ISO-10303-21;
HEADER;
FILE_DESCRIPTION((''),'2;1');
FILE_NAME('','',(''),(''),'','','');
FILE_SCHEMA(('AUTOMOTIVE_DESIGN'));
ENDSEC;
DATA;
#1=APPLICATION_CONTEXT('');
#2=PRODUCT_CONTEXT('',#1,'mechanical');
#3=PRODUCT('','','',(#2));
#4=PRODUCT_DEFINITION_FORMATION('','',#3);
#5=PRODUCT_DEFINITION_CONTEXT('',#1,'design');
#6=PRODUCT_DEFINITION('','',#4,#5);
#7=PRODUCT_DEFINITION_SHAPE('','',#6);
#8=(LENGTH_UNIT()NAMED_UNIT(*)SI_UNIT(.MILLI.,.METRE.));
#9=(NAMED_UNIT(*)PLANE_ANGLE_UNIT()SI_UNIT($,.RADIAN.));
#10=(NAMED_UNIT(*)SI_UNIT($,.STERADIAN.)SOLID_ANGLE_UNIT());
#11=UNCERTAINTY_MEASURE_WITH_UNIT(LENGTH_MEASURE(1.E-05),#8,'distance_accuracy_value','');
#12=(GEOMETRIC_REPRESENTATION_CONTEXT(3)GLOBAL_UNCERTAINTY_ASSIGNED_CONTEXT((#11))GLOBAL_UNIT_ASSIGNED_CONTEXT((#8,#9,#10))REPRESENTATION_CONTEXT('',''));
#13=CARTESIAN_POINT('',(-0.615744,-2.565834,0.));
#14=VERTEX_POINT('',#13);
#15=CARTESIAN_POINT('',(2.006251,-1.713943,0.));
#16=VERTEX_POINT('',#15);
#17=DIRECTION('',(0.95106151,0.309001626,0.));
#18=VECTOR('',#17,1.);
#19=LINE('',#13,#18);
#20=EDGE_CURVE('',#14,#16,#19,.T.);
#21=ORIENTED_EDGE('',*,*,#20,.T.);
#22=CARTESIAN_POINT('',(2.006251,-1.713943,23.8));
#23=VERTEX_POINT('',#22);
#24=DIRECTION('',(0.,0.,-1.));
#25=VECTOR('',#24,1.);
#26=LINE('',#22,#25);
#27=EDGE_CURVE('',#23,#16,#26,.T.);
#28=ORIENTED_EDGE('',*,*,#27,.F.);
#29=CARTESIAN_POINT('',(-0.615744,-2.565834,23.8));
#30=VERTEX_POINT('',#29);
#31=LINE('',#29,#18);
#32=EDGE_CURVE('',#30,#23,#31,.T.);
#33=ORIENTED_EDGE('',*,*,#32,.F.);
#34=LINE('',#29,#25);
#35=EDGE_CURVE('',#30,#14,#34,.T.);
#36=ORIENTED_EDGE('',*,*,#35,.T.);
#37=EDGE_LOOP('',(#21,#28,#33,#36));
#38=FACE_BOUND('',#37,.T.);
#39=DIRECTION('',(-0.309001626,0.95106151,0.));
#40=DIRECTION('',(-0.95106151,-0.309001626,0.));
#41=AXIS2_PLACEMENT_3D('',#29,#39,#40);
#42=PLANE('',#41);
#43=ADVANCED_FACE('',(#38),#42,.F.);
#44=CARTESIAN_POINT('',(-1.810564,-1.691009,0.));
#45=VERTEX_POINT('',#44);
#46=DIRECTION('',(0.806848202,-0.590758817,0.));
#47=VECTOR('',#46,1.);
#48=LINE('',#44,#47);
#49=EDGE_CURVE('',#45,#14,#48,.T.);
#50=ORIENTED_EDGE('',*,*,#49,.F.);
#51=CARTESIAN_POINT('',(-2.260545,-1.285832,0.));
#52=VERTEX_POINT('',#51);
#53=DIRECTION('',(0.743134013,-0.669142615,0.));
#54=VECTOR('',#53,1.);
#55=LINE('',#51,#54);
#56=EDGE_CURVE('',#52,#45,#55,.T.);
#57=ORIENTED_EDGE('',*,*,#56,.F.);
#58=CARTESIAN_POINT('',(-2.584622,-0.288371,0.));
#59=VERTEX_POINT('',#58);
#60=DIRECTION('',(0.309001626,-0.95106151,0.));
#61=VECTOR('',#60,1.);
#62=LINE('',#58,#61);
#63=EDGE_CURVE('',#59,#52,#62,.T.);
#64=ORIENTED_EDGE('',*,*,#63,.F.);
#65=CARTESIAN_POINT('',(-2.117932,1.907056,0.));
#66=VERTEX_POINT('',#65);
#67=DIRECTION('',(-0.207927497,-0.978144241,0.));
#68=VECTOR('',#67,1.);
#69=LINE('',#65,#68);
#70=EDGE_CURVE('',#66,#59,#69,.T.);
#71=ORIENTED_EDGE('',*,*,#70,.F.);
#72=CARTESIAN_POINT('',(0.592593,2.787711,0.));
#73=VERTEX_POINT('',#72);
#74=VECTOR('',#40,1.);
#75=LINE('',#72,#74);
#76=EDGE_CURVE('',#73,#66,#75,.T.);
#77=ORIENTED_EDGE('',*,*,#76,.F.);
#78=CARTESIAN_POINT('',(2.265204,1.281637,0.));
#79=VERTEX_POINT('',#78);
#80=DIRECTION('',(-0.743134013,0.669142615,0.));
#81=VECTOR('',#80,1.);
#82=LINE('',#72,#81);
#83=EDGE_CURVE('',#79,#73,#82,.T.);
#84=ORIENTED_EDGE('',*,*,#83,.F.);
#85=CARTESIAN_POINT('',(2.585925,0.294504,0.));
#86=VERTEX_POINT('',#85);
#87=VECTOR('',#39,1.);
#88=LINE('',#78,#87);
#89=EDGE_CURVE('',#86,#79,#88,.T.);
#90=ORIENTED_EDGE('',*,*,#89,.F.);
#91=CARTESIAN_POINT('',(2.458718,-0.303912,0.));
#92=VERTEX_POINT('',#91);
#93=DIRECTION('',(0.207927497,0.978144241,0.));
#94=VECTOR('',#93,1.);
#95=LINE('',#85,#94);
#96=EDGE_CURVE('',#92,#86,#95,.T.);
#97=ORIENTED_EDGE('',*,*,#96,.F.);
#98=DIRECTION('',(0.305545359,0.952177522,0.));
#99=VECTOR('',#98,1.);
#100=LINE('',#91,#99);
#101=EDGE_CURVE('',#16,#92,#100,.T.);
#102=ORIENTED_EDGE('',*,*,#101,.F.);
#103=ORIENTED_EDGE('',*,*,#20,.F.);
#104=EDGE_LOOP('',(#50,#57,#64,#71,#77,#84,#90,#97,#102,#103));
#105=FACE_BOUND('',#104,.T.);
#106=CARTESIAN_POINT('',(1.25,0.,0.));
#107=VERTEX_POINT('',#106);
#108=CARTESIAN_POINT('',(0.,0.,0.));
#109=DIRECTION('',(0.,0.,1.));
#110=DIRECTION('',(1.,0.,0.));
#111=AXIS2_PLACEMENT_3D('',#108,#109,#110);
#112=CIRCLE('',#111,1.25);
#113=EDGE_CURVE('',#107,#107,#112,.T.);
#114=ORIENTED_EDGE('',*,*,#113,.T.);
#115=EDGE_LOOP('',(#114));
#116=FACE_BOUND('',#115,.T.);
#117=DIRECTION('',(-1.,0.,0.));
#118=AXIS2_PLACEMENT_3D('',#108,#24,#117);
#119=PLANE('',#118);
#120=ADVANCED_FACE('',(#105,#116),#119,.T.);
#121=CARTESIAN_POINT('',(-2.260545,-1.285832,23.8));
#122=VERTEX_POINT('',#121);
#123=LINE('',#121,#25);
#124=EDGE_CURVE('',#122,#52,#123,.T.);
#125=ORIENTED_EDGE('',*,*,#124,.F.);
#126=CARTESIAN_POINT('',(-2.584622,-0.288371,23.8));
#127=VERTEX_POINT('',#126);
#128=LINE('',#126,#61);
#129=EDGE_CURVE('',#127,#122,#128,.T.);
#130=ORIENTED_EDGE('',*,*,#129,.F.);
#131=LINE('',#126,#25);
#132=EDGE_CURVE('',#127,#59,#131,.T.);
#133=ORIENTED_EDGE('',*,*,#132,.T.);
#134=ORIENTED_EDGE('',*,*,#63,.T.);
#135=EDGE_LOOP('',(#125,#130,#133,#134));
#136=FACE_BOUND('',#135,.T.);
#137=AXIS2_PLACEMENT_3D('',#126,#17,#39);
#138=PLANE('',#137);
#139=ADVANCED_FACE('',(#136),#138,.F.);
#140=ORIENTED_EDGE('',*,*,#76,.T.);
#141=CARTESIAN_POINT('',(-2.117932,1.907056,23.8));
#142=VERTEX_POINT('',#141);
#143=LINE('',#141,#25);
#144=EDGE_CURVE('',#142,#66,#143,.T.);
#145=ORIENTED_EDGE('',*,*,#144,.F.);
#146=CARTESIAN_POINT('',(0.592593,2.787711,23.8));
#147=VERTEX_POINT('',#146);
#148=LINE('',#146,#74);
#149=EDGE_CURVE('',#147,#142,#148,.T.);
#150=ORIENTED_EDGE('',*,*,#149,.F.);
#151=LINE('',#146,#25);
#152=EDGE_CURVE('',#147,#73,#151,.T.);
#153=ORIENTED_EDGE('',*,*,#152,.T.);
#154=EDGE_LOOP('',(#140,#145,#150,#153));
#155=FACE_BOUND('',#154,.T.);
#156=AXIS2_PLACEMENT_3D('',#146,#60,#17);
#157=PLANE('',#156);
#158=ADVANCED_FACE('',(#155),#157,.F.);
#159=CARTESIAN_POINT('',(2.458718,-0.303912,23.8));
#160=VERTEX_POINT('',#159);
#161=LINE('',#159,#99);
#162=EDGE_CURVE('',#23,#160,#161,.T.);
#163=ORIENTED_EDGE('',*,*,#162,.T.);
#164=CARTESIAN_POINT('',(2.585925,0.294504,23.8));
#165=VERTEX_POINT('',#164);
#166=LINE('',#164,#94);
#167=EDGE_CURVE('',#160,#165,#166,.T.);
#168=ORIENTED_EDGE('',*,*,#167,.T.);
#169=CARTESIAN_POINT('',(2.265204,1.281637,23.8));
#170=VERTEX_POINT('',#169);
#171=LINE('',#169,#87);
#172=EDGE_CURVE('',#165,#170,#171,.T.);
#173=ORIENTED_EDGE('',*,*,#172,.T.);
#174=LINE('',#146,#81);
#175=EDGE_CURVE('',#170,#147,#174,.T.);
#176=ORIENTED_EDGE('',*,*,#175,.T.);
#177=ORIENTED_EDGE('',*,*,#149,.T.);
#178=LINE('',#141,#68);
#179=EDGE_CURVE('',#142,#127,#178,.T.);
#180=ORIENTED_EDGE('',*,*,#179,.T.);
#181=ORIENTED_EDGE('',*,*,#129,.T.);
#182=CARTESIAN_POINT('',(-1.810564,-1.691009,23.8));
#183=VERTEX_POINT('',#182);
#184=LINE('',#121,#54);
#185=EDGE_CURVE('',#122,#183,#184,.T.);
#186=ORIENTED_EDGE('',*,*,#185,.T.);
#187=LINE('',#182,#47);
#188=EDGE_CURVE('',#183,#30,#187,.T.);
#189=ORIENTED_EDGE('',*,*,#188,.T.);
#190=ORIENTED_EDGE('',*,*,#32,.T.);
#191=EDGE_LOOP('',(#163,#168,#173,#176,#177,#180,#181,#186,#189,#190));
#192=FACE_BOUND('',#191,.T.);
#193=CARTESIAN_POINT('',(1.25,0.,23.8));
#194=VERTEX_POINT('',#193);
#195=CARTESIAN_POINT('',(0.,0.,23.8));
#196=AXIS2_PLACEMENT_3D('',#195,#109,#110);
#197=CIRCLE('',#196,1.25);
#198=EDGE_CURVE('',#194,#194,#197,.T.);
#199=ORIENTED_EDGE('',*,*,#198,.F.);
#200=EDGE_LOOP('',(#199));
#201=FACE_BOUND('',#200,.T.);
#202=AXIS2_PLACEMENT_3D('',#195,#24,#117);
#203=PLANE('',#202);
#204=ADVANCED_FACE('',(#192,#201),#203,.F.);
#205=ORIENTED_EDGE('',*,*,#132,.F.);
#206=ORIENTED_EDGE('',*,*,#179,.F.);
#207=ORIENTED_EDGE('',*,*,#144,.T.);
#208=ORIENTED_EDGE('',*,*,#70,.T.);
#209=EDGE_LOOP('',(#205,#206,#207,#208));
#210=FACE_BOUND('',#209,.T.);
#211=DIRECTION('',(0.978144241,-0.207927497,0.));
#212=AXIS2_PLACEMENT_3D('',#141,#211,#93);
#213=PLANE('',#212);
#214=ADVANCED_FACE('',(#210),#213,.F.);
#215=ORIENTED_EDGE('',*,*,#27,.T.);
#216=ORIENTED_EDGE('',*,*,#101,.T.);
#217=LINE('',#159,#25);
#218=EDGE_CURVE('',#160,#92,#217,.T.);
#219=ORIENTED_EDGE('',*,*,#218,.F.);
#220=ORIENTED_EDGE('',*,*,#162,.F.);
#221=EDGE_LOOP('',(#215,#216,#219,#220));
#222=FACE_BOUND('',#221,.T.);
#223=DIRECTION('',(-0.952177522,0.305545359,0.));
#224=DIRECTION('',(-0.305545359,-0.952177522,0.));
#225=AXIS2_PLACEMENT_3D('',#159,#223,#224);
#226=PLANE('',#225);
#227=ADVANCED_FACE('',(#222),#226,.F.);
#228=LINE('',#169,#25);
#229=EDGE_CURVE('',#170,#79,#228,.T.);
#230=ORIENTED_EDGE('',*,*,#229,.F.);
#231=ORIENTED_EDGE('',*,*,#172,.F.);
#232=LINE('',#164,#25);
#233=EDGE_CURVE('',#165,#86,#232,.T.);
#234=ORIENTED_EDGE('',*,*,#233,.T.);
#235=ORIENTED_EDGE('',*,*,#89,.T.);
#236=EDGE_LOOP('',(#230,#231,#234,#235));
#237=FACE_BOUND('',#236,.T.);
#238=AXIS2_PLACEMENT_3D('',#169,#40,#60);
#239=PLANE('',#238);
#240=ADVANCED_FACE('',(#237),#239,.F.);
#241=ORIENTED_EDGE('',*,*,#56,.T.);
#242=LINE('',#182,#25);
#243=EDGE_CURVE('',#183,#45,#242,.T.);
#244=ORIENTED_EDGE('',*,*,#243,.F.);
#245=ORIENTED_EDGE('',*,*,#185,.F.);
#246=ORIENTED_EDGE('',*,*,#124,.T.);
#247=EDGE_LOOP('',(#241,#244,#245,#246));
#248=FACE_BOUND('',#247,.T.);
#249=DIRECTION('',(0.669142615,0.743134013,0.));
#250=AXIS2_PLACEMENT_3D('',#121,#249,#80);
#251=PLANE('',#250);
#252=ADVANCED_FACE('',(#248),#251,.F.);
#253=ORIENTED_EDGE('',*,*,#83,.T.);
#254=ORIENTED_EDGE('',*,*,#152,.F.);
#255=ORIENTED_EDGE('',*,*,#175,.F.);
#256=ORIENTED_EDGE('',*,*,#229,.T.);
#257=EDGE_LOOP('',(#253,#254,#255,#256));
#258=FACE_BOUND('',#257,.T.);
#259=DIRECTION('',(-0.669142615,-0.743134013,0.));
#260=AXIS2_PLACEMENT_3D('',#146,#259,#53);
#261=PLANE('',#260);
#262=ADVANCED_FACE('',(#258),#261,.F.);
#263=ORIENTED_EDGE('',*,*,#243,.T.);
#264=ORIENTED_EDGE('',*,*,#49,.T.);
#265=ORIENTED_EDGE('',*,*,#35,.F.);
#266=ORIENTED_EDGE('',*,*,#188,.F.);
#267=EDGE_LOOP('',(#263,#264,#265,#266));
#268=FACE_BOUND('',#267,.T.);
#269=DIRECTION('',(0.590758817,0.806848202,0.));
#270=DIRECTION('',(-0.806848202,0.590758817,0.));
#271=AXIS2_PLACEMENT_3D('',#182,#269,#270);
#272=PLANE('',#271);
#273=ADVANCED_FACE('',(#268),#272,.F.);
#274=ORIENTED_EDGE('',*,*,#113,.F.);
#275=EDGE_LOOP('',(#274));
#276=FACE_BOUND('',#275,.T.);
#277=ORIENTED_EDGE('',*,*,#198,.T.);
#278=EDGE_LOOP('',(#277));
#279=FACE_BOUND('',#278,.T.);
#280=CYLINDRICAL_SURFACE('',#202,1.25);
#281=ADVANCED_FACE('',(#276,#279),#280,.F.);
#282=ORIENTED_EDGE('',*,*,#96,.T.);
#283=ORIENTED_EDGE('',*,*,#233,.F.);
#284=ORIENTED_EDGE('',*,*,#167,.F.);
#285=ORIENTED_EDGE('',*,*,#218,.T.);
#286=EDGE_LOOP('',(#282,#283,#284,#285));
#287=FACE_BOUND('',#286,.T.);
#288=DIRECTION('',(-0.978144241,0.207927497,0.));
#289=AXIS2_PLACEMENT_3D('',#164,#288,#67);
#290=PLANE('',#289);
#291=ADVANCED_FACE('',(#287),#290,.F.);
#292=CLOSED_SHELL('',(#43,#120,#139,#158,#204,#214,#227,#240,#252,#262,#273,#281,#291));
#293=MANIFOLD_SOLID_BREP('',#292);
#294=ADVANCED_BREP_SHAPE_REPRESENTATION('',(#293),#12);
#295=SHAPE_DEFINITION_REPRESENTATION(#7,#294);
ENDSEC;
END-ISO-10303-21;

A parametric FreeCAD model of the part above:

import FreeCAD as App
import Part
import Sketcher

V = App.Vector
Q = App.Units.Quantity

doc = App.newDocument("Part")
body = doc.addObject("PartDesign::Body", "Body")

# Sketch on XY plane
sketch1 = body.newObject("Sketcher::SketchObject", "Sketch")
sketch1.AttachmentSupport = (doc.getObject("XY_Plane"), [""])
sketch1.MapMode = "FlatFace"
sketch1.addGeometry(Part.LineSegment(V(-0.6, -2.6, 0), V(2, -1.7, 0)), False)
sketch1.addGeometry(Part.LineSegment(V(2, -1.7, 0), V(2.5, -0.3, 0)), False)
sketch1.addGeometry(Part.LineSegment(V(2.5, -0.3, 0), V(2.6, 0.3, 0)), False)
sketch1.addGeometry(Part.LineSegment(V(2.6, 0.3, 0), V(2.3, 1.3, 0)), False)
sketch1.addGeometry(Part.LineSegment(V(2.3, 1.3, 0), V(0.6, 2.8, 0)), False)
sketch1.addGeometry(Part.LineSegment(V(0.6, 2.8, 0), V(-2.1, 1.9, 0)), False)
sketch1.addGeometry(Part.LineSegment(V(-2.1, 1.9, 0), V(-2.6, -0.3, 0)), False)
sketch1.addGeometry(Part.LineSegment(V(-2.6, -0.3, 0), V(-2.3, -1.3, 0)), False)
sketch1.addGeometry(Part.LineSegment(V(-2.3, -1.3, 0), V(-1.8, -1.7, 0)), False)
sketch1.addGeometry(Part.LineSegment(V(-1.8, -1.7, 0), V(-0.6, -2.6, 0)), False)
sketch1.addGeometry(Part.Circle(V(0, 0, 0), V(0, 0, 1), 1.2), False)
sketch1.addConstraint(Sketcher.Constraint("Coincident", 0, 2, 1, 1))
sketch1.addConstraint(Sketcher.Constraint("Coincident", 1, 2, 2, 1))
sketch1.addConstraint(Sketcher.Constraint("Coincident", 2, 2, 3, 1))
sketch1.addConstraint(Sketcher.Constraint("Coincident", 3, 2, 4, 1))
sketch1.addConstraint(Sketcher.Constraint("Coincident", 4, 2, 5, 1))
sketch1.addConstraint(Sketcher.Constraint("Coincident", 5, 2, 6, 1))
sketch1.addConstraint(Sketcher.Constraint("Coincident", 6, 2, 7, 1))
sketch1.addConstraint(Sketcher.Constraint("Coincident", 7, 2, 8, 1))
sketch1.addConstraint(Sketcher.Constraint("Coincident", 8, 2, 9, 1))
sketch1.addConstraint(Sketcher.Constraint("Coincident", 9, 2, 0, 1))
sketch1.addConstraint(Sketcher.Constraint("Coincident", 10, 3, -1, 1))
sketch1.addConstraint(Sketcher.Constraint("Perpendicular", 0, 3))
sketch1.addConstraint(Sketcher.Constraint("Perpendicular", 3, 5))
sketch1.addConstraint(Sketcher.Constraint("Parallel", 2, 6))
sketch1.addConstraint(Sketcher.Constraint("Perpendicular", 5, 7))
sketch1.addConstraint(Sketcher.Constraint("Parallel", 4, 8))
sketch1.addConstraint(Sketcher.Constraint("Equal", 1, 9))
sketch1.addConstraint(Sketcher.Constraint("Diameter", 10, Q("2.5 mm")))
sketch1.addConstraint(Sketcher.Constraint("Distance", 5, Q("2.85 mm")))
sketch1.addConstraint(Sketcher.Constraint("DistanceY", 9, 2, 7, 2, Q("1.280002 mm")))
sketch1.addConstraint(Sketcher.Constraint("DistanceX", 7, 2, 9, 2, Q("1.644801 mm")))
sketch1.addConstraint(Sketcher.Constraint("Distance", 1, Q("1.480849 mm")))
sketch1.addConstraint(Sketcher.Constraint("Distance", 3, Q("1.037928 mm")))
sketch1.addConstraint(Sketcher.Constraint("Distance", 4, Q("2.250752 mm")))
sketch1.addConstraint(Sketcher.Constraint("DistanceX", -1, 1, 0, 2, Q("2.006251 mm")))
sketch1.addConstraint(Sketcher.Constraint("DistanceY", 1, 2, -1, 1, Q("0.303912 mm")))
sketch1.addConstraint(Sketcher.Constraint("DistanceY", -1, 1, 4, 2, Q("2.787711 mm")))
sketch1.addConstraint(Sketcher.Constraint("DistanceX", 5, 2, -1, 1, Q("2.117932 mm")))
sketch1.addConstraint(Sketcher.Constraint("DistanceX", 6, 2, -1, 1, Q("2.584622 mm")))
sketch1.addConstraint(Sketcher.Constraint("DistanceY", 6, 2, -1, 1, Q("0.288371 mm")))
sketch1.addConstraint(Sketcher.Constraint("DistanceY", 8, 2, -1, 1, Q("1.691009 mm")))
sketch1.addConstraint(Sketcher.Constraint("DistanceY", 0, 2, 1, 2, Q("1.410031 mm")))
pad1 = body.newObject("PartDesign::Pad", "Pad")
pad1.Profile = sketch1
pad1.Length = 23.8

doc.recompute()
